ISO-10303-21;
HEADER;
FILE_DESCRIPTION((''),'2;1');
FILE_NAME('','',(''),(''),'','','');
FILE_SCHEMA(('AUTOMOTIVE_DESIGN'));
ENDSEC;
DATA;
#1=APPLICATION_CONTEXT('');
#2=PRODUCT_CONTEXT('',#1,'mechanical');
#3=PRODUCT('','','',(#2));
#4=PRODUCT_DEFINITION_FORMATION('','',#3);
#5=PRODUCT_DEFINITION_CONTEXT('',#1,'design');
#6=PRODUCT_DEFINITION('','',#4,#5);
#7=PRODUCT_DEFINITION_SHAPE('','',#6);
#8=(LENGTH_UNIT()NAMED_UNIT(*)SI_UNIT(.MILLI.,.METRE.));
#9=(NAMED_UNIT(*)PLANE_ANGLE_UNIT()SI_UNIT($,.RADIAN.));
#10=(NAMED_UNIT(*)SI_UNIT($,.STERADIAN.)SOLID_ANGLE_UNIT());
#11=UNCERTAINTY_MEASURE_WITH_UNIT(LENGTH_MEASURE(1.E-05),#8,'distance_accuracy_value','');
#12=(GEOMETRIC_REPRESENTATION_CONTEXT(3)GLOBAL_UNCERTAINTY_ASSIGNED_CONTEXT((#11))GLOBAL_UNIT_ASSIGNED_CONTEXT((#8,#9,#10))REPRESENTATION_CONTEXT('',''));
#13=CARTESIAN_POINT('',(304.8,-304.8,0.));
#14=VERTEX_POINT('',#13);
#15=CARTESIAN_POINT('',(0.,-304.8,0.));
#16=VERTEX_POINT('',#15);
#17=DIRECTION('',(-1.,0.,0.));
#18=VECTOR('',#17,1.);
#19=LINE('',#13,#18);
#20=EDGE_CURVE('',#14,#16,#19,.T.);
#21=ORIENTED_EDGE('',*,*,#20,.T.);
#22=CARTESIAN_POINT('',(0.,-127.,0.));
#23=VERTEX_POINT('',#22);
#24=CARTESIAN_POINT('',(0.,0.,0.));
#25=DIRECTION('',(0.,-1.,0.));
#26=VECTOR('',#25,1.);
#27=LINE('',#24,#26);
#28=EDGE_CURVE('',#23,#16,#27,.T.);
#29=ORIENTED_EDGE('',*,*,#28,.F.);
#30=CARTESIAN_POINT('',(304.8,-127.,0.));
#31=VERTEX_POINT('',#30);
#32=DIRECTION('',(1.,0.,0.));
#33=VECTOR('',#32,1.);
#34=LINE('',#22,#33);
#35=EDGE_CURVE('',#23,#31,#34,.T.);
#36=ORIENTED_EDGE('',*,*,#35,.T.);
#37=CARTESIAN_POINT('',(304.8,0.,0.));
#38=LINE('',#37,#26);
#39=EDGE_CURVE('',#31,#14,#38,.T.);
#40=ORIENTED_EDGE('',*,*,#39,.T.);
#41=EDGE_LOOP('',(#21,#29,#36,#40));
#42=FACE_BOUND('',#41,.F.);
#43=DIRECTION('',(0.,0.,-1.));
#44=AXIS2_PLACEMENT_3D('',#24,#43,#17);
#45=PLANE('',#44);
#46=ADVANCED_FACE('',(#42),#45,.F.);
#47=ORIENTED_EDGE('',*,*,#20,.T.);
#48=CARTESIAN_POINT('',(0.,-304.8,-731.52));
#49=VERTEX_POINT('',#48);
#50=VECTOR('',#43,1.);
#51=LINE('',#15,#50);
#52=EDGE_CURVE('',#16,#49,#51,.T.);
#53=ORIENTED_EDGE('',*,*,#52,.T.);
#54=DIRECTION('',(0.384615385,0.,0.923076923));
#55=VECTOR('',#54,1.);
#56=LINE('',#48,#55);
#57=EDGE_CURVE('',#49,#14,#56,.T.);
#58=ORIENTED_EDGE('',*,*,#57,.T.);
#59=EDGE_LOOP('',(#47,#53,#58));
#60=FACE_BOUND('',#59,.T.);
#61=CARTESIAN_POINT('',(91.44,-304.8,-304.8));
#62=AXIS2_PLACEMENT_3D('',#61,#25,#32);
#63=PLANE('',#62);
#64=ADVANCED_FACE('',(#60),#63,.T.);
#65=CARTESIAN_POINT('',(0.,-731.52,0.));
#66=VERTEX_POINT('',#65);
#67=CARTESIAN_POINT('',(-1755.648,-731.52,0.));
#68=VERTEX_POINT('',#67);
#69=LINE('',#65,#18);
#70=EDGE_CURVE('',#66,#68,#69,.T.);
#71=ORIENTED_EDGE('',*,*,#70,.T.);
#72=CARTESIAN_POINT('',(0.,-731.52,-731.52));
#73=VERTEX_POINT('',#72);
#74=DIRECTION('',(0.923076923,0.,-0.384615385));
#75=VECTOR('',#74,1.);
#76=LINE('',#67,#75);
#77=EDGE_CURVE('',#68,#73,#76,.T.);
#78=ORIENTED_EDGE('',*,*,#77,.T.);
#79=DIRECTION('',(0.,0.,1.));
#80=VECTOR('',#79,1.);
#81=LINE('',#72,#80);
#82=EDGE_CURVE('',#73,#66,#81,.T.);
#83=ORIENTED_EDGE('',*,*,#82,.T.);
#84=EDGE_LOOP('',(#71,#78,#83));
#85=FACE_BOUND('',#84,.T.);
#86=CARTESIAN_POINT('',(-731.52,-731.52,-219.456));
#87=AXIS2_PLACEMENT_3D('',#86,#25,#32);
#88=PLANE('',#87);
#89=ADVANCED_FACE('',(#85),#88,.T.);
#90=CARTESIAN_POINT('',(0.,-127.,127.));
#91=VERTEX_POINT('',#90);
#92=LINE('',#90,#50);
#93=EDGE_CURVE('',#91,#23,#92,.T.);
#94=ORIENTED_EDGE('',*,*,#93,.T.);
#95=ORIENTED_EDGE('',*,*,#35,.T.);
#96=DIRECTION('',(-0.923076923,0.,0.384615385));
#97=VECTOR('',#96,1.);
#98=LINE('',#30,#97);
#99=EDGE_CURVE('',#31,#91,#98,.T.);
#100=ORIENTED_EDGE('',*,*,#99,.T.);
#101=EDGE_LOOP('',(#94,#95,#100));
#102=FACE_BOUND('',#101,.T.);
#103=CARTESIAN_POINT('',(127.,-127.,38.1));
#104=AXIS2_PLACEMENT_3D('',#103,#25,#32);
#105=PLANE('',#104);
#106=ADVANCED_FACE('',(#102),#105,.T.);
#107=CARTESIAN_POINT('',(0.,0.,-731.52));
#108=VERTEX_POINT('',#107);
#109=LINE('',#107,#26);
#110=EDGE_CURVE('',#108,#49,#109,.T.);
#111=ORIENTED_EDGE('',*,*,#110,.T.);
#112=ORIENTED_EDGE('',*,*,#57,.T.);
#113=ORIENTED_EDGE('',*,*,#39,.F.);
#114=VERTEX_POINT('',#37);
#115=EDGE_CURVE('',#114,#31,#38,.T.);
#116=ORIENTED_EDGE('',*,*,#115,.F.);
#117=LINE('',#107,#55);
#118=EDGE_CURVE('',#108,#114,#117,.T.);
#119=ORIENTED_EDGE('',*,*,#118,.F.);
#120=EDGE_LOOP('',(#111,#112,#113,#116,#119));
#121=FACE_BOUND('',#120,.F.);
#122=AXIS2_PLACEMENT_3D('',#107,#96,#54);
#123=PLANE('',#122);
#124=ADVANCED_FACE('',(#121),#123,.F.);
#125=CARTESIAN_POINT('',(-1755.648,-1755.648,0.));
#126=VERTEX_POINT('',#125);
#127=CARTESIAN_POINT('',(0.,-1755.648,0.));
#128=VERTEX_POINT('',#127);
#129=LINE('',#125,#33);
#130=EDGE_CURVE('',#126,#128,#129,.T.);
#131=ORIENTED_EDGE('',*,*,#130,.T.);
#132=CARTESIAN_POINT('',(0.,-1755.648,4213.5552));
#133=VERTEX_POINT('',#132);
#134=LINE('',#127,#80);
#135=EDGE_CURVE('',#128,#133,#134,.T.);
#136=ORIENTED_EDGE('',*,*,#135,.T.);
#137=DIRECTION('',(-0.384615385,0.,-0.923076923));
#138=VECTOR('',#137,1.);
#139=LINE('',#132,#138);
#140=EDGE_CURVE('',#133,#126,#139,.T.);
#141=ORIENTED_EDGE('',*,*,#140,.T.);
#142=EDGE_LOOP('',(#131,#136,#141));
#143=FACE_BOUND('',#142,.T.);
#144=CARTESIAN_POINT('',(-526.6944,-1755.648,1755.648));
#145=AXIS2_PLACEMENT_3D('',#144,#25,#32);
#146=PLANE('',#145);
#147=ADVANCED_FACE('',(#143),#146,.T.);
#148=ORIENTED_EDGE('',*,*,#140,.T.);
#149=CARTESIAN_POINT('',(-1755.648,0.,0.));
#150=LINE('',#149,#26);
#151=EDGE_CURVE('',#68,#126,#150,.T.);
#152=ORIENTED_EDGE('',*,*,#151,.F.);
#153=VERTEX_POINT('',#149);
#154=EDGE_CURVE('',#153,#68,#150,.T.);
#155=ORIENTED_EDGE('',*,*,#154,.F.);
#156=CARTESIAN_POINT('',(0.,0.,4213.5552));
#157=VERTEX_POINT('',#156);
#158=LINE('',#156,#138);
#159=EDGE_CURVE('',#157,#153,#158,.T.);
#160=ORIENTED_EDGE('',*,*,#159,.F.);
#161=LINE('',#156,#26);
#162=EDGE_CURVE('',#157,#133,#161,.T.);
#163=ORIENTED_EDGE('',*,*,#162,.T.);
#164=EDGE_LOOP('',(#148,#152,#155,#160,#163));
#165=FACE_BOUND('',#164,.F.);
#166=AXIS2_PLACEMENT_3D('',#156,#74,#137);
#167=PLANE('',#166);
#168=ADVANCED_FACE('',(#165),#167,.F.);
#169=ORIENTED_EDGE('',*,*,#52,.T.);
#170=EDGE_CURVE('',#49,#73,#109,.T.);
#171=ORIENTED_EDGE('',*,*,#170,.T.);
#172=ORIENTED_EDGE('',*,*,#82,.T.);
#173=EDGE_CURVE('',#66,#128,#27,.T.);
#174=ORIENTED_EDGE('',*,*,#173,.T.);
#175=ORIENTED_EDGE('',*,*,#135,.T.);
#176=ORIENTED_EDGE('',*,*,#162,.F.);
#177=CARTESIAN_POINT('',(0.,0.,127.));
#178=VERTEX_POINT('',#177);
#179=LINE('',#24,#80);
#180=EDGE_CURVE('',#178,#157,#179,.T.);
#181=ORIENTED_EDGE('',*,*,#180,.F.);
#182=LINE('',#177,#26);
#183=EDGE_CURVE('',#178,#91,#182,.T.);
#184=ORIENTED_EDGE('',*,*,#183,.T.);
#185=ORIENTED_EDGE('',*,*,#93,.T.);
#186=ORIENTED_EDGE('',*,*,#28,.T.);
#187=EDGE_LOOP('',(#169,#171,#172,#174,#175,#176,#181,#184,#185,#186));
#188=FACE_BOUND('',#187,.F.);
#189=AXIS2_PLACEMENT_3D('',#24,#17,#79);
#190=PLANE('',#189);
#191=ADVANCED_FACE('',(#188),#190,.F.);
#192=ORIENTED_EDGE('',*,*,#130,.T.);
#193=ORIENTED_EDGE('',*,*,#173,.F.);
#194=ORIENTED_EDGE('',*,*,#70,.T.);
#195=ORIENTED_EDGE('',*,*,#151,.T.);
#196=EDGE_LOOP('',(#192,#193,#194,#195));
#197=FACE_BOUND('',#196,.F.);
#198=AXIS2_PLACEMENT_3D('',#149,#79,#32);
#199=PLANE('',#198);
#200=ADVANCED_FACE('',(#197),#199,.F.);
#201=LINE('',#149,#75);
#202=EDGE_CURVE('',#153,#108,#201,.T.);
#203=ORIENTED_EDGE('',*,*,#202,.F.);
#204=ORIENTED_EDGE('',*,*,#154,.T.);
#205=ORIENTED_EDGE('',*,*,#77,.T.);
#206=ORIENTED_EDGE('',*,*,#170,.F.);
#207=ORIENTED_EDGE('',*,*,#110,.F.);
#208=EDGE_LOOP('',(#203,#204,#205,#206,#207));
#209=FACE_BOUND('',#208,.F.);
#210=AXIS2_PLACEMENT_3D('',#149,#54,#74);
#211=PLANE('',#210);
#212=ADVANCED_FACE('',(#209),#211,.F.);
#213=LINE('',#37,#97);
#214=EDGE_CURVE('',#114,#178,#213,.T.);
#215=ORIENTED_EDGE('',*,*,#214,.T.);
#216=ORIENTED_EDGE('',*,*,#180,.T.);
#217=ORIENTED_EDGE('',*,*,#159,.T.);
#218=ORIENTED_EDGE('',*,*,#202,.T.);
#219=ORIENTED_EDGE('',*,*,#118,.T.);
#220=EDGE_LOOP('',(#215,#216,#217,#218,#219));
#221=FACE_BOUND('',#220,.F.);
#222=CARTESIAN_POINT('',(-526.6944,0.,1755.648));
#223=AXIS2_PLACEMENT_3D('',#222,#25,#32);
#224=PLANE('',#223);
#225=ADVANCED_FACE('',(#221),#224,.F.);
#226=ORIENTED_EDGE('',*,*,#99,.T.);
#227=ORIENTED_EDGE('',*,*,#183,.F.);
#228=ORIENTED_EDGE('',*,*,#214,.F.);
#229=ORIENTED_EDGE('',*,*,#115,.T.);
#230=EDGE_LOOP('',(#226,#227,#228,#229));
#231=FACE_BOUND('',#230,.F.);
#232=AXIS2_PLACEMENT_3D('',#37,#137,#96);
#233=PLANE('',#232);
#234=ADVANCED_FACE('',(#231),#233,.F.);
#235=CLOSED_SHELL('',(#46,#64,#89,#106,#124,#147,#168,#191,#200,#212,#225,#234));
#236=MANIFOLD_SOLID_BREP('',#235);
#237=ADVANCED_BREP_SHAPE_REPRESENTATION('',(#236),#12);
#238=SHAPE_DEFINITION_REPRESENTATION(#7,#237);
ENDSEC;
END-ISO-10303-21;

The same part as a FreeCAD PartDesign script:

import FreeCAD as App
import Part
import Sketcher

V = App.Vector
Q = App.Units.Quantity


def add_polygon(sketch, points):
    """Adds a closed chain of lines whose ends are joined by coincident constraints."""
    first, n = sketch.GeometryCount, len(points)
    for a, b in zip(points, points[1:] + points[:1]):
        sketch.addGeometry(Part.LineSegment(App.Vector(*a, 0), App.Vector(*b, 0)), False)
    for i in range(n):
        sketch.addConstraint(Sketcher.Constraint("Coincident", first + i, 2, first + (i + 1) % n, 1))

doc = App.newDocument("Part")
body = doc.addObject("PartDesign::Body", "Body")

sketch1 = body.newObject("Sketcher::SketchObject", "Sketch")
sketch1.AttachmentSupport = (doc.getObject("XZ_Plane"), [""])
sketch1.MapMode = "FlatFace"
add_polygon(sketch1, [(0, 127), (0, 0), (305, 0)])
sketch1.addConstraint([
    Sketcher.Constraint("Vertical", 0),
    Sketcher.Constraint("Horizontal", 1),
    Sketcher.Constraint("Coincident", 0, 2, -1, 1),
    Sketcher.Constraint("DistanceX", 1, 1, 1, 2, Q("12 in")),
    Sketcher.Constraint("DistanceY", 0, 2, 0, 1, Q("5 in")),
])
pad1 = body.newObject("PartDesign::Pad", "Pad")
pad1.Profile = sketch1
pad1.Length = Q("5 in")

sketch2 = body.newObject("Sketcher::SketchObject", "Sketch001")
sketch2.AttachmentSupport = (doc.getObject("XZ_Plane"), [""])
sketch2.MapMode = "FlatFace"
add_polygon(sketch2, [(305, 0), (0, 0), (0, -732)])
sketch2.addConstraint([
    Sketcher.Constraint("Horizontal", 0),
    Sketcher.Constraint("Vertical", 1),
    Sketcher.Constraint("Coincident", 0, 2, -1, 1),
    Sketcher.Constraint("DistanceX", 0, 2, 0, 1, Q("12 in")),
    Sketcher.Constraint("DistanceY", 1, 2, 1, 1, Q("28.8 in")),
])
pad2 = body.newObject("PartDesign::Pad", "Pad001")
pad2.Profile = sketch2
pad2.Length = Q("12 in")

sketch3 = body.newObject("Sketcher::SketchObject", "Sketch002")
sketch3.AttachmentSupport = (doc.getObject("XZ_Plane"), [""])
sketch3.MapMode = "FlatFace"
add_polygon(sketch3, [(-1756, 0), (0, -732), (0, 0)])
sketch3.addConstraint([
    Sketcher.Constraint("Vertical", 1),
    Sketcher.Constraint("Horizontal", 2),
    Sketcher.Constraint("Coincident", 1, 2, -1, 1),
    Sketcher.Constraint("DistanceY", 1, 1, 1, 2, Q("28.8 in")),
    Sketcher.Constraint("DistanceX", 2, 2, 2, 1, Q("69.12 in")),
])
pad3 = body.newObject("PartDesign::Pad", "Pad002")
pad3.Profile = sketch3
pad3.Length = Q("28.8 in")

sketch4 = body.newObject("Sketcher::SketchObject", "Sketch003")
sketch4.AttachmentSupport = (doc.getObject("XZ_Plane"), [""])
sketch4.MapMode = "FlatFace"
add_polygon(sketch4, [(-1756, 0), (0, 0), (0, 4214)])
sketch4.addConstraint([
    Sketcher.Constraint("Horizontal", 0),
    Sketcher.Constraint("Vertical", 1),
    Sketcher.Constraint("Coincident", 0, 2, -1, 1),
    Sketcher.Constraint("DistanceX", 0, 1, 0, 2, Q("69.12 in")),
    Sketcher.Constraint("DistanceY", 1, 1, 1, 2, Q("165.888 in")),
])
pad4 = body.newObject("PartDesign::Pad", "Pad003")
pad4.Profile = sketch4
pad4.Length = Q("69.12 in")

doc.recompute()
